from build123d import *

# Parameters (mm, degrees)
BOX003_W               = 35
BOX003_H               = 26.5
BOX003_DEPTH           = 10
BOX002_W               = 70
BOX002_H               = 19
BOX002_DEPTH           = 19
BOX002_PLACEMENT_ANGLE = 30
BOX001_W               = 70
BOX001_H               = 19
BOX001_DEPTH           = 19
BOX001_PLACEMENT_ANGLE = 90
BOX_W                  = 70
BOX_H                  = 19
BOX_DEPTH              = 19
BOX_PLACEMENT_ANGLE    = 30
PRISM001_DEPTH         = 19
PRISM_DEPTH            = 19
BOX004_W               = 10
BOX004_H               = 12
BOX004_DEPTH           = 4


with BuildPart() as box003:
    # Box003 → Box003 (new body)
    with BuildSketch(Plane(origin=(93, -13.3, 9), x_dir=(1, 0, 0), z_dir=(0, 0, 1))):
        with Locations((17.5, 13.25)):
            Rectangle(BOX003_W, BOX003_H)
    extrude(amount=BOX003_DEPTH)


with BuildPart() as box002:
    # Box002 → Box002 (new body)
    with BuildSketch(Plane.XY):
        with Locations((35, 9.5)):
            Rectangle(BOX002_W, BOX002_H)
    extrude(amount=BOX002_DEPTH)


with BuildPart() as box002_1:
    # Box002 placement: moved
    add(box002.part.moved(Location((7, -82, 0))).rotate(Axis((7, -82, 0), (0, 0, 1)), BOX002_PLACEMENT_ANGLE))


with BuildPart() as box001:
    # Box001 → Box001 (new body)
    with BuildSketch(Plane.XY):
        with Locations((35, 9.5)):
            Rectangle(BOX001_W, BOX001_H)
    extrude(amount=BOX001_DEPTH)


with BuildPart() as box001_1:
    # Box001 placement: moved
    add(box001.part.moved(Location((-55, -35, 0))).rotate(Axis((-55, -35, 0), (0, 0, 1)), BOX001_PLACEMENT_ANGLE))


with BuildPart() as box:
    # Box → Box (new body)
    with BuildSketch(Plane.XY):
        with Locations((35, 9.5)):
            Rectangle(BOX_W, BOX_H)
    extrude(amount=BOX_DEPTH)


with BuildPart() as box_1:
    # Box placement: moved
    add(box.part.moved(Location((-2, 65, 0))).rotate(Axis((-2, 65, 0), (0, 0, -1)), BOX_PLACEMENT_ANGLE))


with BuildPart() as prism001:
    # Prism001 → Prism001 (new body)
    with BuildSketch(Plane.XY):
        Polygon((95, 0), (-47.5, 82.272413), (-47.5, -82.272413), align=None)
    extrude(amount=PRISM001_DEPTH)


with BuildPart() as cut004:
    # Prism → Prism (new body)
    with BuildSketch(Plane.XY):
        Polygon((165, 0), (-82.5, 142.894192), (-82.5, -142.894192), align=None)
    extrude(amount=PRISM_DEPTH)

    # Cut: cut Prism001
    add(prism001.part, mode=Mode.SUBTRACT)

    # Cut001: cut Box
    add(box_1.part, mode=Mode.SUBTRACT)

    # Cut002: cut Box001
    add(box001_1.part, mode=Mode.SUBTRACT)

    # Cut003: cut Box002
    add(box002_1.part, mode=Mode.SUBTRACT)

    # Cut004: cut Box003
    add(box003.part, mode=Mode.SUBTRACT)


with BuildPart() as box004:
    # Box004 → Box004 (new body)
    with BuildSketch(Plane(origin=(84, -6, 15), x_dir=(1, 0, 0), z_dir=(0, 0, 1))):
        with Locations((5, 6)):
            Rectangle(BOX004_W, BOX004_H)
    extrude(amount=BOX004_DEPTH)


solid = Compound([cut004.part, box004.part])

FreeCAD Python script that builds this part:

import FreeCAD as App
import Part
import Sketcher
Q = App.Units.Quantity

doc = App.newDocument("Part")
body = doc.addObject("PartDesign::Body", "Body")

sketch1 = body.newObject("Sketcher::SketchObject", "Sketch")
sketch1.AttachmentSupport = (doc.getObject("XY_Plane"), [""])
sketch1.MapMode = "FlatFace"
sketch1.AttachmentOffset = App.Placement(App.Vector(0, 0, 9), App.Rotation())
sketch1.addGeometry([
    Part.LineSegment(App.Vector(93, 13, 0), App.Vector(93, -13, 0)),
    Part.LineSegment(App.Vector(93, -13, 0), App.Vector(128, -13, 0)),
    Part.LineSegment(App.Vector(128, -13, 0), App.Vector(128, 13, 0)),
    Part.LineSegment(App.Vector(128, 13, 0), App.Vector(93, 13, 0)),
], False)
sketch1.addConstraint([
    Sketcher.Constraint("Coincident", 0, 2, 1, 1),
    Sketcher.Constraint("Coincident", 1, 2, 2, 1),
    Sketcher.Constraint("Coincident", 2, 2, 3, 1),
    Sketcher.Constraint("Coincident", 3, 2, 0, 1),
    Sketcher.Constraint("Vertical", 0),
    Sketcher.Constraint("Horizontal", 1),
    Sketcher.Constraint("Vertical", 2),
    Sketcher.Constraint("Horizontal", 3),
    Sketcher.Constraint("DistanceX", 1, 1, 1, 2, Q("35 mm")),
    Sketcher.Constraint("DistanceY", 0, 2, 0, 1, Q("26.5 mm")),
    Sketcher.Constraint("DistanceX", -1, 1, 0, 2, Q("93 mm")),
    Sketcher.Constraint("DistanceY", 0, 2, -1, 1, Q("13.3 mm")),
])
pad1 = body.newObject("PartDesign::Pad", "Pad")
pad1.Profile = sketch1
pad1.Length = 10
body2 = doc.addObject("PartDesign::Body", "Body001")

sketch2 = body2.newObject("Sketcher::SketchObject", "Sketch001")
sketch2.AttachmentSupport = (doc.getObject("XY_Plane001"), [""])
sketch2.MapMode = "FlatFace"
sketch2.addGeometry([
    Part.LineSegment(App.Vector(0, 19, 0), App.Vector(0, 0, 0)),
    Part.LineSegment(App.Vector(0, 0, 0), App.Vector(70, 0, 0)),
    Part.LineSegment(App.Vector(70, 0, 0), App.Vector(70, 19, 0)),
    Part.LineSegment(App.Vector(70, 19, 0), App.Vector(0, 19, 0)),
], False)
sketch2.addConstraint([
    Sketcher.Constraint("Coincident", 0, 2, 1, 1),
    Sketcher.Constraint("Coincident", 1, 2, 2, 1),
    Sketcher.Constraint("Coincident", 2, 2, 3, 1),
    Sketcher.Constraint("Coincident", 3, 2, 0, 1),
    Sketcher.Constraint("Vertical", 0),
    Sketcher.Constraint("Horizontal", 1),
    Sketcher.Constraint("Vertical", 2),
    Sketcher.Constraint("Horizontal", 3),
    Sketcher.Constraint("Coincident", 0, 2, -1, 1),
    Sketcher.Constraint("DistanceX", 1, 1, 1, 2, Q("70 mm")),
    Sketcher.Constraint("DistanceY", 0, 2, 0, 1, Q("19 mm")),
])
pad2 = body2.newObject("PartDesign::Pad", "Pad001")
pad2.Profile = sketch2
pad2.Length = 19
body3 = doc.addObject("PartDesign::Body", "Body002")
doc.recompute()

body2.Placement = App.Placement(App.Vector(7, -82, 0), App.Rotation(App.Vector(0, 0, 1), 30))
boolean = body3.newObject("PartDesign::Boolean", "Boolean")
boolean.Type = "Fuse"
boolean.addObjects([body2])
body4 = doc.addObject("PartDesign::Body", "Body003")

sketch3 = body4.newObject("Sketcher::SketchObject", "Sketch002")
sketch3.AttachmentSupport = (doc.getObject("XY_Plane003"), [""])
sketch3.MapMode = "FlatFace"
sketch3.addGeometry([
    Part.LineSegment(App.Vector(0, 19, 0), App.Vector(0, 0, 0)),
    Part.LineSegment(App.Vector(0, 0, 0), App.Vector(70, 0, 0)),
    Part.LineSegment(App.Vector(70, 0, 0), App.Vector(70, 19, 0)),
    Part.LineSegment(App.Vector(70, 19, 0), App.Vector(0, 19, 0)),
], False)
sketch3.addConstraint([
    Sketcher.Constraint("Coincident", 0, 2, 1, 1),
    Sketcher.Constraint("Coincident", 1, 2, 2, 1),
    Sketcher.Constraint("Coincident", 2, 2, 3, 1),
    Sketcher.Constraint("Coincident", 3, 2, 0, 1),
    Sketcher.Constraint("Vertical", 0),
    Sketcher.Constraint("Horizontal", 1),
    Sketcher.Constraint("Vertical", 2),
    Sketcher.Constraint("Horizontal", 3),
    Sketcher.Constraint("Coincident", 0, 2, -1, 1),
    Sketcher.Constraint("DistanceX", 1, 1, 1, 2, Q("70 mm")),
    Sketcher.Constraint("DistanceY", 0, 2, 0, 1, Q("19 mm")),
])
pad3 = body4.newObject("PartDesign::Pad", "Pad002")
pad3.Profile = sketch3
pad3.Length = 19
body5 = doc.addObject("PartDesign::Body", "Body004")
doc.recompute()

body4.Placement = App.Placement(App.Vector(-55, -35, 0), App.Rotation(App.Vector(0, 0, 1), 90))
boolean2 = body5.newObject("PartDesign::Boolean", "Boolean001")
boolean2.Type = "Fuse"
boolean2.addObjects([body4])
body6 = doc.addObject("PartDesign::Body", "Body005")

sketch4 = body6.newObject("Sketcher::SketchObject", "Sketch003")
sketch4.AttachmentSupport = (doc.getObject("XY_Plane005"), [""])
sketch4.MapMode = "FlatFace"
sketch4.addGeometry([
    Part.LineSegment(App.Vector(0, 19, 0), App.Vector(0, 0, 0)),
    Part.LineSegment(App.Vector(0, 0, 0), App.Vector(70, 0, 0)),
    Part.LineSegment(App.Vector(70, 0, 0), App.Vector(70, 19, 0)),
    Part.LineSegment(App.Vector(70, 19, 0), App.Vector(0, 19, 0)),
], False)
sketch4.addConstraint([
    Sketcher.Constraint("Coincident", 0, 2, 1, 1),
    Sketcher.Constraint("Coincident", 1, 2, 2, 1),
    Sketcher.Constraint("Coincident", 2, 2, 3, 1),
    Sketcher.Constraint("Coincident", 3, 2, 0, 1),
    Sketcher.Constraint("Vertical", 0),
    Sketcher.Constraint("Horizontal", 1),
    Sketcher.Constraint("Vertical", 2),
    Sketcher.Constraint("Horizontal", 3),
    Sketcher.Constraint("Coincident", 0, 2, -1, 1),
    Sketcher.Constraint("DistanceX", 1, 1, 1, 2, Q("70 mm")),
    Sketcher.Constraint("DistanceY", 0, 2, 0, 1, Q("19 mm")),
])
pad4 = body6.newObject("PartDesign::Pad", "Pad003")
pad4.Profile = sketch4
pad4.Length = 19
body7 = doc.addObject("PartDesign::Body", "Body006")
doc.recompute()

body6.Placement = App.Placement(App.Vector(-2, 65, 0), App.Rotation(App.Vector(0, 0, -1), 30))
boolean3 = body7.newObject("PartDesign::Boolean", "Boolean002")
boolean3.Type = "Fuse"
boolean3.addObjects([body6])
body8 = doc.addObject("PartDesign::Body", "Body007")

sketch5 = body8.newObject("Sketcher::SketchObject", "Sketch004")
sketch5.AttachmentSupport = (doc.getObject("XY_Plane007"), [""])
sketch5.MapMode = "FlatFace"
sketch5.addGeometry([
    Part.LineSegment(App.Vector(95, 0, 0), App.Vector(-48, 82, 0)),
    Part.LineSegment(App.Vector(-48, 82, 0), App.Vector(-48, -82, 0)),
    Part.LineSegment(App.Vector(-48, -82, 0), App.Vector(95, 0, 0)),
], False)
sketch5.addConstraint([
    Sketcher.Constraint("Coincident", 0, 2, 1, 1),
    Sketcher.Constraint("Coincident", 1, 2, 2, 1),
    Sketcher.Constraint("Coincident", 2, 2, 0, 1),
    Sketcher.Constraint("Vertical", 1),
    Sketcher.Constraint("PointOnObject", 2, 2, -1),
    Sketcher.Constraint("Equal", 0, 2),
    Sketcher.Constraint("Angle", 0, Q("150 deg")),
    Sketcher.Constraint("DistanceX", -1, 1, 2, 2, Q("95 mm")),
    Sketcher.Constraint("DistanceX", 0, 2, -1, 1, Q("47.5 mm")),
])
pad5 = body8.newObject("PartDesign::Pad", "Pad004")
pad5.Profile = sketch5
pad5.Length = 19
body9 = doc.addObject("PartDesign::Body", "Body008")

sketch6 = body9.newObject("Sketcher::SketchObject", "Sketch005")
sketch6.AttachmentSupport = (doc.getObject("XY_Plane008"), [""])
sketch6.MapMode = "FlatFace"
sketch6.addGeometry([
    Part.LineSegment(App.Vector(165, 0, 0), App.Vector(-82, 143, 0)),
    Part.LineSegment(App.Vector(-82, 143, 0), App.Vector(-82, -143, 0)),
    Part.LineSegment(App.Vector(-82, -143, 0), App.Vector(165, 0, 0)),
], False)
sketch6.addConstraint([
    Sketcher.Constraint("Coincident", 0, 2, 1, 1),
    Sketcher.Constraint("Coincident", 1, 2, 2, 1),
    Sketcher.Constraint("Coincident", 2, 2, 0, 1),
    Sketcher.Constraint("Vertical", 1),
    Sketcher.Constraint("PointOnObject", 2, 2, -1),
    Sketcher.Constraint("Equal", 0, 2),
    Sketcher.Constraint("Angle", 0, Q("150 deg")),
    Sketcher.Constraint("DistanceX", -1, 1, 2, 2, Q("165 mm")),
    Sketcher.Constraint("DistanceX", 0, 2, -1, 1, Q("82.5 mm")),
])
pad6 = body9.newObject("PartDesign::Pad", "Pad005")
pad6.Profile = sketch6
pad6.Length = 19
doc.recompute()

boolean4 = body9.newObject("PartDesign::Boolean", "Boolean003")
boolean4.Type = "Cut"
boolean4.addObjects([body8])
doc.recompute()

boolean5 = body9.newObject("PartDesign::Boolean", "Boolean004")
boolean5.Type = "Cut"
boolean5.addObjects([body7])
doc.recompute()

boolean6 = body9.newObject("PartDesign::Boolean", "Boolean005")
boolean6.Type = "Cut"
boolean6.addObjects([body5])
doc.recompute()

boolean7 = body9.newObject("PartDesign::Boolean", "Boolean006")
boolean7.Type = "Cut"
boolean7.addObjects([body3])
doc.recompute()

boolean8 = body9.newObject("PartDesign::Boolean", "Boolean007")
boolean8.Type = "Cut"
boolean8.addObjects([body])
body10 = doc.addObject("PartDesign::Body", "Body009")

sketch7 = body10.newObject("Sketcher::SketchObject", "Sketch006")
sketch7.AttachmentSupport = (doc.getObject("XY_Plane009"), [""])
sketch7.MapMode = "FlatFace"
sketch7.AttachmentOffset = App.Placement(App.Vector(0, 0, 15), App.Rotation())
sketch7.addGeometry([
    Part.LineSegment(App.Vector(84, 6, 0), App.Vector(84, -6, 0)),
    Part.LineSegment(App.Vector(84, -6, 0), App.Vector(94, -6, 0)),
    Part.LineSegment(App.Vector(94, -6, 0), App.Vector(94, 6, 0)),
    Part.LineSegment(App.Vector(94, 6, 0), App.Vector(84, 6, 0)),
], False)
sketch7.addConstraint([
    Sketcher.Constraint("Coincident", 0, 2, 1, 1),
    Sketcher.Constraint("Coincident", 1, 2, 2, 1),
    Sketcher.Constraint("Coincident", 2, 2, 3, 1),
    Sketcher.Constraint("Coincident", 3, 2, 0, 1),
    Sketcher.Constraint("Vertical", 0),
    Sketcher.Constraint("Horizontal", 1),
    Sketcher.Constraint("Vertical", 2),
    Sketcher.Constraint("Horizontal", 3),
    Sketcher.Constraint("DistanceX", 1, 1, 1, 2, Q("10 mm")),
    Sketcher.Constraint("DistanceY", 0, 2, 0, 1, Q("12 mm")),
    Sketcher.Constraint("DistanceX", -1, 1, 0, 2, Q("84 mm")),
    Sketcher.Constraint("DistanceY", 0, 2, -1, 1, Q("6 mm")),
])
pad7 = body10.newObject("PartDesign::Pad", "Pad006")
pad7.Profile = sketch7
pad7.Length = 4

doc.recompute()
